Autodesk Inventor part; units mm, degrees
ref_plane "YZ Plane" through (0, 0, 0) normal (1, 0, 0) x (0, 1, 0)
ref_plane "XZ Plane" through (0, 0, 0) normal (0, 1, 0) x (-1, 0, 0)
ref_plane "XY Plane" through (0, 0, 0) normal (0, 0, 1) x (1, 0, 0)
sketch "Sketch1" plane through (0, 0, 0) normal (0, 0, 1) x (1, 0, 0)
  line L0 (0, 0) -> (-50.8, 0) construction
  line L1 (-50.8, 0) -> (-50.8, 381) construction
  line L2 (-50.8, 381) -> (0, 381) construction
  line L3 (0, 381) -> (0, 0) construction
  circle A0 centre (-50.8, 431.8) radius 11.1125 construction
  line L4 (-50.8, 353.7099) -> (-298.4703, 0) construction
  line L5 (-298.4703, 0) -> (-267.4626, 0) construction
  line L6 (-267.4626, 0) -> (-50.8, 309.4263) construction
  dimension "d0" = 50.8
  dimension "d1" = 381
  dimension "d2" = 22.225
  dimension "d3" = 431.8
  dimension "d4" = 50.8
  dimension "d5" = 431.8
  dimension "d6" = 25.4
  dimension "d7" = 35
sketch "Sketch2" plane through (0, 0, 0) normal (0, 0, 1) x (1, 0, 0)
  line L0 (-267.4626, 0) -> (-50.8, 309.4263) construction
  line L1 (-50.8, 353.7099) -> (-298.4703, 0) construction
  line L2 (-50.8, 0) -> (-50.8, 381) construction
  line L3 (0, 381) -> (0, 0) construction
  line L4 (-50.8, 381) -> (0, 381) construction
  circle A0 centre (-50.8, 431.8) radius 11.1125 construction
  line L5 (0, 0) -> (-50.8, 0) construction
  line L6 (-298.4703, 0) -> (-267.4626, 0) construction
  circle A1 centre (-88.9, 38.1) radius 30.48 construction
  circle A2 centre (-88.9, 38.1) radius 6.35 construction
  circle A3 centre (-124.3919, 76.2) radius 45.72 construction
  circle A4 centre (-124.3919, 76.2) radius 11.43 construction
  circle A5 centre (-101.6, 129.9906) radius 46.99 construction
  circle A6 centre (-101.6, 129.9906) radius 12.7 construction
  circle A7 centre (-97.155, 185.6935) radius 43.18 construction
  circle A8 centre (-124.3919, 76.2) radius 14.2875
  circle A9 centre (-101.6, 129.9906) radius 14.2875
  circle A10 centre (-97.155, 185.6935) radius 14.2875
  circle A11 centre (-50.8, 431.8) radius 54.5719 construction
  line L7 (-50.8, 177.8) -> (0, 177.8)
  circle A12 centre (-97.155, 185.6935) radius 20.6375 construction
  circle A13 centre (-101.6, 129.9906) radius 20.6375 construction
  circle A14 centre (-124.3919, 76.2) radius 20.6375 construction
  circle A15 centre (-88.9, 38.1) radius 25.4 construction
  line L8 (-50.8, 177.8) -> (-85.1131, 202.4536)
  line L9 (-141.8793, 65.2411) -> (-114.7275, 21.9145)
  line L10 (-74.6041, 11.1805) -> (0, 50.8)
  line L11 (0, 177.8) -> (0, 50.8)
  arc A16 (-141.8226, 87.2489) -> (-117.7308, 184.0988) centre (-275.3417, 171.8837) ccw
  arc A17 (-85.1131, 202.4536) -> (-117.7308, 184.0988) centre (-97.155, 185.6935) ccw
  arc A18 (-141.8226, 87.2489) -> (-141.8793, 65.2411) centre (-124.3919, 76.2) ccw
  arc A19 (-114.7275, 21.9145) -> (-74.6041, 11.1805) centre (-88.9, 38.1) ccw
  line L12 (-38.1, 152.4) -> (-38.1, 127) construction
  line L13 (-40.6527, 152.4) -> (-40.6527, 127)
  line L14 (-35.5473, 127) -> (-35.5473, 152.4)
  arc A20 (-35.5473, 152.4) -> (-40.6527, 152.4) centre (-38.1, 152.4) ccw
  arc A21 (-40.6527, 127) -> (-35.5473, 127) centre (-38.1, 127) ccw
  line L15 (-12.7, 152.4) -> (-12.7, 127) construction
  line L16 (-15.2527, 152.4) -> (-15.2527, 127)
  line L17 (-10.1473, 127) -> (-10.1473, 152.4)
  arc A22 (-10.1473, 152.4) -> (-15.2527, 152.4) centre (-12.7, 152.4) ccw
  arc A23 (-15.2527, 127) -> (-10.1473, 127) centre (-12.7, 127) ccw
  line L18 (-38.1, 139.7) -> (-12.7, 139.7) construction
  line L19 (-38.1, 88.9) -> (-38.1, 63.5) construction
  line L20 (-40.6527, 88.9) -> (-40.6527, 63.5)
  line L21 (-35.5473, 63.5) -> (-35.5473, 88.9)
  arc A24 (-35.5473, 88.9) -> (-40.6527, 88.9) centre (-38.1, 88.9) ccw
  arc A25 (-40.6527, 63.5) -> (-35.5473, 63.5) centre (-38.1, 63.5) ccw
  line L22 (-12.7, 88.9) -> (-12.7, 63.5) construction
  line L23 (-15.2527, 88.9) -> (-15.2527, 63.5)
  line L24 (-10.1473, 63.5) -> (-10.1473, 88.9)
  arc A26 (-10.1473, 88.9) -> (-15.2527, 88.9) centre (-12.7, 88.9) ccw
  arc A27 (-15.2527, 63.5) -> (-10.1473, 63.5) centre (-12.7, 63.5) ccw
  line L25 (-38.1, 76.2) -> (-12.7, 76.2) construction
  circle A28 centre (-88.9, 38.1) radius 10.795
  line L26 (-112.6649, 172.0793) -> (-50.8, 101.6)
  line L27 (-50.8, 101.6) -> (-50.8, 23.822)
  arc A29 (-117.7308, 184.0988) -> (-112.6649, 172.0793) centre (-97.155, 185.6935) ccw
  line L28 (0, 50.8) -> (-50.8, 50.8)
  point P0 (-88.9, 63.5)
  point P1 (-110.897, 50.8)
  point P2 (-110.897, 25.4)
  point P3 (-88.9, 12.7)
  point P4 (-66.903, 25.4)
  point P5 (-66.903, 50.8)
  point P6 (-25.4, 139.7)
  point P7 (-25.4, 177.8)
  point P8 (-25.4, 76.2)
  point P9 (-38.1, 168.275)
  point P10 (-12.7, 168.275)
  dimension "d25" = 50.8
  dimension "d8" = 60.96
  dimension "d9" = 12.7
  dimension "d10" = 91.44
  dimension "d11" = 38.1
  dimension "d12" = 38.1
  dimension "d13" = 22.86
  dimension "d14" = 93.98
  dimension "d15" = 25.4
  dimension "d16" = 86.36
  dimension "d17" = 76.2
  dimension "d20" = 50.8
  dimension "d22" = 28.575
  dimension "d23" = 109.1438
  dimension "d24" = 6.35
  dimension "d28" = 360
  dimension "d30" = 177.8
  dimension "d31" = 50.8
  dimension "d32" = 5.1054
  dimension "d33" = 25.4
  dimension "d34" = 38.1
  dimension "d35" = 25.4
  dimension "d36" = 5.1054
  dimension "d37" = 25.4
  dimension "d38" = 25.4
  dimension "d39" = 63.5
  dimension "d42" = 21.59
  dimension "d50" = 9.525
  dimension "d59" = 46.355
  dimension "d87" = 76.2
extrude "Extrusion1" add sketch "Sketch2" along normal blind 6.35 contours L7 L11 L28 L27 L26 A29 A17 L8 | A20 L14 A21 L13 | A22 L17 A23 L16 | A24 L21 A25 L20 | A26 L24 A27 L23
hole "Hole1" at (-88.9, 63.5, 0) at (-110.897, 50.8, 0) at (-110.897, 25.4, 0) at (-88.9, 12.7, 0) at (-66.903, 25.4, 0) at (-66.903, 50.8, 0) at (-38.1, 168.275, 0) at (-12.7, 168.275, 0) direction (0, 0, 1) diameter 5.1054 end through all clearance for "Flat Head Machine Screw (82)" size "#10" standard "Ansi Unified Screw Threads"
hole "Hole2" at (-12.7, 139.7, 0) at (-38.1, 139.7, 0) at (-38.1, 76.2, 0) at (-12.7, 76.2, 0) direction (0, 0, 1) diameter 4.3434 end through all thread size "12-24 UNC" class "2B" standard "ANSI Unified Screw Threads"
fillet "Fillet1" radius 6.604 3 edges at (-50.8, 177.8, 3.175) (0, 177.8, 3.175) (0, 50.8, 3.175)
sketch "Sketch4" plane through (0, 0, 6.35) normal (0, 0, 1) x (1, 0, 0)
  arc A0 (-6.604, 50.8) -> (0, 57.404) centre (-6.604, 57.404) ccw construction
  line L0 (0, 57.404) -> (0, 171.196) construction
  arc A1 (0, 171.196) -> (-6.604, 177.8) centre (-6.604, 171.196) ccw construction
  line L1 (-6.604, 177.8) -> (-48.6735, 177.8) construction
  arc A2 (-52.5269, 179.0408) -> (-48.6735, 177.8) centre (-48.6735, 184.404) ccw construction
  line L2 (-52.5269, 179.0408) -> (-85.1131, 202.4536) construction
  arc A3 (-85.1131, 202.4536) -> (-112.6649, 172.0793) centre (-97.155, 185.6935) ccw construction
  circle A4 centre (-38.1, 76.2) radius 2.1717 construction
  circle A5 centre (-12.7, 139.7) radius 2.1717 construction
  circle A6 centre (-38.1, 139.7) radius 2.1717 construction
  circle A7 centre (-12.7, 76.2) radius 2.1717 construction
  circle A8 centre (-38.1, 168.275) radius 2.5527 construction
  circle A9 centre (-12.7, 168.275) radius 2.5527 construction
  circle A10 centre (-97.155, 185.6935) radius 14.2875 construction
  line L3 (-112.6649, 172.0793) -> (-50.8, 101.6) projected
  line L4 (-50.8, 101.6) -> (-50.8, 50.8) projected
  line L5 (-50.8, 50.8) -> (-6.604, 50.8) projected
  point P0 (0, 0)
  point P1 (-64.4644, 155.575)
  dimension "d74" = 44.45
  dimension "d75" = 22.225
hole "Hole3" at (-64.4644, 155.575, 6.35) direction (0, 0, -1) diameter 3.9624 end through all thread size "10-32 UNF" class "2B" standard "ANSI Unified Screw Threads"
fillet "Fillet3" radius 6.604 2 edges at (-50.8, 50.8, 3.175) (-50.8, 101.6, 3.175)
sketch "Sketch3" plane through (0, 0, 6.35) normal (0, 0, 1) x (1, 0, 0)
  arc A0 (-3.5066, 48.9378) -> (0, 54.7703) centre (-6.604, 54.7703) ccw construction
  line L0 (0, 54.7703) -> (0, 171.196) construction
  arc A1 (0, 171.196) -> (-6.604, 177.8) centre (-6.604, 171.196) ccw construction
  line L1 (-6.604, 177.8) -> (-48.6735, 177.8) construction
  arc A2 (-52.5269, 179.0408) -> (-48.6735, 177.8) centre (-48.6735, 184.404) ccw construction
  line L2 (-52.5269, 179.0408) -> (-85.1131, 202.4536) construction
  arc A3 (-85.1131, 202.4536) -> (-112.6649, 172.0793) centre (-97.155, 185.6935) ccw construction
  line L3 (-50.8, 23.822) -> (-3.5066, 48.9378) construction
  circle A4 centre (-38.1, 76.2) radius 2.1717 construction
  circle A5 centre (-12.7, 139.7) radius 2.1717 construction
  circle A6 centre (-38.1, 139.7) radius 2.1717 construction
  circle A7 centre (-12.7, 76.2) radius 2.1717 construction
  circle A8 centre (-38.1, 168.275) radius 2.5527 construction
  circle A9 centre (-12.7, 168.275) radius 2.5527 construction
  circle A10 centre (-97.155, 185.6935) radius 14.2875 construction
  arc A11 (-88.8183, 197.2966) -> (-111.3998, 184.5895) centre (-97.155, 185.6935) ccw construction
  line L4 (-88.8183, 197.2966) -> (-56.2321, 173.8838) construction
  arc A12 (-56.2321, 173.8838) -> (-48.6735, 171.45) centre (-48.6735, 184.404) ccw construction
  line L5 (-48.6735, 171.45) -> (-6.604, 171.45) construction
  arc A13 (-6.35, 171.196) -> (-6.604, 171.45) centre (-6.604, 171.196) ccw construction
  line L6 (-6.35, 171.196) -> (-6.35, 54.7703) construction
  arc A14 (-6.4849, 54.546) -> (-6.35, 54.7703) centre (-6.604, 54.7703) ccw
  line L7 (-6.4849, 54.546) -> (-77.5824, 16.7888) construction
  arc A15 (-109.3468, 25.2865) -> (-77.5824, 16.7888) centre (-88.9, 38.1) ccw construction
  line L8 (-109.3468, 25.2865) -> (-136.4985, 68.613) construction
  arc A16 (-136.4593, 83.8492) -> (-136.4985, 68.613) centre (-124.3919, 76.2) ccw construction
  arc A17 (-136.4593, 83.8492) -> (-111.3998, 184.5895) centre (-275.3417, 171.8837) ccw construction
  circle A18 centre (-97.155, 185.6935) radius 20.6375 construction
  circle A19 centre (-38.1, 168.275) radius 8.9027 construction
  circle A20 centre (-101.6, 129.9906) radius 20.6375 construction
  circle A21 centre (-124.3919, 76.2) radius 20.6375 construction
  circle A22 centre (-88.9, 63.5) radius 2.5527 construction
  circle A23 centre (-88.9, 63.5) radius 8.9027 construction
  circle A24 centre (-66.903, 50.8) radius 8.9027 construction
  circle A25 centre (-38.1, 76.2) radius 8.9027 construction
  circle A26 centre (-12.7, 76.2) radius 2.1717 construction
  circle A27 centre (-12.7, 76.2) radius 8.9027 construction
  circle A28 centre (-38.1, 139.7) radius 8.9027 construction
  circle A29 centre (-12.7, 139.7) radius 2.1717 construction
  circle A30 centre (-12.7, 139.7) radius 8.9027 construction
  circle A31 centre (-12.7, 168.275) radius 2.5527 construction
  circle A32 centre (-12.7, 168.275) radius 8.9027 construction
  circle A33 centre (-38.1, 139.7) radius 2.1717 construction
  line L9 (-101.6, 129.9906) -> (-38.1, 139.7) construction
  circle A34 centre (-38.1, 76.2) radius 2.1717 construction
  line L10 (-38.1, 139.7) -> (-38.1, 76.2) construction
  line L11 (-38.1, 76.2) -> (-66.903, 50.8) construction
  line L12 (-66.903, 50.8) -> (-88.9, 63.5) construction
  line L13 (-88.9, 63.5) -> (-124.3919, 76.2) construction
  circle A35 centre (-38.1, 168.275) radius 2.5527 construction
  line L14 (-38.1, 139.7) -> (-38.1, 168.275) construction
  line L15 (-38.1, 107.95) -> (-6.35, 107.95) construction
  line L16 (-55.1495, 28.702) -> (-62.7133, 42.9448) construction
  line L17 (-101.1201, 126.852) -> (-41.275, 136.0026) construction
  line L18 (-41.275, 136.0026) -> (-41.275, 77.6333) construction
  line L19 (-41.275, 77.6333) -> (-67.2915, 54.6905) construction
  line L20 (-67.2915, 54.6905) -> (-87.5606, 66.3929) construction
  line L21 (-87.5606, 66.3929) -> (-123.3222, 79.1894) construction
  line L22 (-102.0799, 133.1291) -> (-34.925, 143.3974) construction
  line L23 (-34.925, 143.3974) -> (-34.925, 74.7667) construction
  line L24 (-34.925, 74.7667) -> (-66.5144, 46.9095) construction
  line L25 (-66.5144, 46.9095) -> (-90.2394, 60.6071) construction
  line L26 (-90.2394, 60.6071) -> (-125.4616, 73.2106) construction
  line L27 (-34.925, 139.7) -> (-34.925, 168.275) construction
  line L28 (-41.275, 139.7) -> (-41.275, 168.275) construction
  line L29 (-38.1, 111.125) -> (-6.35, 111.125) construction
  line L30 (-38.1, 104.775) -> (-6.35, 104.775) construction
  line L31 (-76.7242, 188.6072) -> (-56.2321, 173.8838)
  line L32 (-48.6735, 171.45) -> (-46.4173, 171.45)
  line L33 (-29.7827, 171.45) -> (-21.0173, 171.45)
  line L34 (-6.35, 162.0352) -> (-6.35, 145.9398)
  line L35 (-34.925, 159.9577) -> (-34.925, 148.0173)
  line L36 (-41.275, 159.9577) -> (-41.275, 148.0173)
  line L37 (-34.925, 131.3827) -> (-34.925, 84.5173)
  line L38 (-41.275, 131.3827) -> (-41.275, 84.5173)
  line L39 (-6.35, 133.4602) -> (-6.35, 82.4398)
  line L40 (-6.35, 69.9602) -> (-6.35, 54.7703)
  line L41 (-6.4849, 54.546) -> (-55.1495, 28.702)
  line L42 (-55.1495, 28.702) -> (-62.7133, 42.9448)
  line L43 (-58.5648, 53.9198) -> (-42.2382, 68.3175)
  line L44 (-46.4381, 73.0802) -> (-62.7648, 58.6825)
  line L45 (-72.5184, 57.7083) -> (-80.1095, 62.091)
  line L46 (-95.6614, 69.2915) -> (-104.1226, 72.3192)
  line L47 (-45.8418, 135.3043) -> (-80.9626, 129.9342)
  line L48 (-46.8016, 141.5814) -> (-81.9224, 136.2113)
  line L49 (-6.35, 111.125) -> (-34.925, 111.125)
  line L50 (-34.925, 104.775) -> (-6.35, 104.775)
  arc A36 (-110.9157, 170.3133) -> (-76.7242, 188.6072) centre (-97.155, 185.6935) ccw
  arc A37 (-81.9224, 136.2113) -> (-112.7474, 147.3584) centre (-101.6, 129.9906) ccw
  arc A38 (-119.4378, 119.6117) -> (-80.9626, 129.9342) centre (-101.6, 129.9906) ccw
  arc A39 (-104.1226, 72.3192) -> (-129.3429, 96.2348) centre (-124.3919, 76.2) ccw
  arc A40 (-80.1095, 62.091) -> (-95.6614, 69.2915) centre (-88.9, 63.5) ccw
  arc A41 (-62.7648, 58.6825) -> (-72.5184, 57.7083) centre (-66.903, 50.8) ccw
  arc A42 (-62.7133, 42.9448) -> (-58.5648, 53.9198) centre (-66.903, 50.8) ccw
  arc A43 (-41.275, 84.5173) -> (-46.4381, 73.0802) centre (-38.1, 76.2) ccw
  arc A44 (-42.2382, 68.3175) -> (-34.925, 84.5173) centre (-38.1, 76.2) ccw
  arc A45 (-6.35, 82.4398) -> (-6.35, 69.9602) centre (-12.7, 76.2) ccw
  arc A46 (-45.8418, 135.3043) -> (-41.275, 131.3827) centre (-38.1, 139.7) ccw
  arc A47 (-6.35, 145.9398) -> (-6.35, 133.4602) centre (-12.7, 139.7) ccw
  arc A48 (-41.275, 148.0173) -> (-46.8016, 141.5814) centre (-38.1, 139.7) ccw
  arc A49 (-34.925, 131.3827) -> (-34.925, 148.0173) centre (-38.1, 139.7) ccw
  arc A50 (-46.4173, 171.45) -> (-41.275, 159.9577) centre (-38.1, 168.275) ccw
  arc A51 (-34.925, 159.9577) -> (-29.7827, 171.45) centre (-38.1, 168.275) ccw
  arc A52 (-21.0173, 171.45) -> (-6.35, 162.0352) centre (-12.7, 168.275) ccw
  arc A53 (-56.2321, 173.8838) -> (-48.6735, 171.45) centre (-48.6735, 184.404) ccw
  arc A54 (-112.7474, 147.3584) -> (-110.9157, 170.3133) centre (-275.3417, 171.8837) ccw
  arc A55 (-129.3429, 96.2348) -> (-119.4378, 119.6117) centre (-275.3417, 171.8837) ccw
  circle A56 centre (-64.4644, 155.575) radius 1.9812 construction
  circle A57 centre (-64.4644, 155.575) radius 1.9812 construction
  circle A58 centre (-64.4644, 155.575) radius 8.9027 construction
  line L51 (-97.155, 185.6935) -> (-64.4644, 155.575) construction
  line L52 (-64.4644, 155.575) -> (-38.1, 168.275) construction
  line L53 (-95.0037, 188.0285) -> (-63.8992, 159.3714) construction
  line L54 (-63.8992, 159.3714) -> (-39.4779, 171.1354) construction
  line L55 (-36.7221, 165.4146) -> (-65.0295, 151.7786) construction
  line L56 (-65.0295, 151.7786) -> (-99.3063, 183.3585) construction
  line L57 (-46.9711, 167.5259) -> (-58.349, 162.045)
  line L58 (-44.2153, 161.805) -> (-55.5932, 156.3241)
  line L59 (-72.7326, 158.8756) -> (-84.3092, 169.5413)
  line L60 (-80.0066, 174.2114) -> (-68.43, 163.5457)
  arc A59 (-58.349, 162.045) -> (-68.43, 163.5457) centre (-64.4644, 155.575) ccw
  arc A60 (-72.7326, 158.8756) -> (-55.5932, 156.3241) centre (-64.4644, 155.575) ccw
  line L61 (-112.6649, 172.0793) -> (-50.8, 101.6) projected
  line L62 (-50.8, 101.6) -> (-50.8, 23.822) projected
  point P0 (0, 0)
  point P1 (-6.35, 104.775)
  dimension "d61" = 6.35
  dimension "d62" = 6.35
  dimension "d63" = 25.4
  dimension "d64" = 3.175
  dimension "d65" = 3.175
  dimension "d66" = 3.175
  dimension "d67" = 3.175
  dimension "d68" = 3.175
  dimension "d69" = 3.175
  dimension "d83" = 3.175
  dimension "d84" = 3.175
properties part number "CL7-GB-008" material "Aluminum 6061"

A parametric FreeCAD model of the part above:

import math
import FreeCAD as App
import Part
import Sketcher
from FreeCAD import Vector
Q = App.Units.Quantity


def edges_at(feature, points):
    """Names of the edges that pass closest to the given points."""
    edges = feature.Shape.Edges
    near = lambda p: min(range(len(edges)), key=lambda i: edges[i].distToShape(Part.Vertex(*p))[0])
    return sorted({f"Edge{near(p) + 1}" for p in points})

doc = App.newDocument("Part")
body = doc.addObject("PartDesign::Body", "Body")

sketch1 = doc.addObject("Sketcher::SketchObject", "Sketch")
body.addObject(sketch1)
sketch1.AttachmentSupport = (doc.XY_Plane, [""])
sketch1.MapMode = "FlatFace"
sketch1.addGeometry([
    Part.LineSegment(Vector(0, 177.8, 0), Vector(-50.8, 177.8, 0)),
    Part.LineSegment(Vector(-50.8, 177.8, 0), Vector(-85.1131, 202.4536, 0)),
    Part.ArcOfCircle(Part.Circle(Vector(-97.155, 185.6935, 0), Vector(0, 0, 1), 20.637505), math.radians(54.303277), math.radians(184.431774)),
    Part.ArcOfCircle(Part.Circle(Vector(-97.155, 185.6935, 0), Vector(0, 0, 1), 20.6375), math.radians(-175.568226), math.radians(-138.724153)),
    Part.LineSegment(Vector(-112.6649, 172.0793, 0), Vector(-50.8, 101.6, 0)),
    Part.LineSegment(Vector(-50.8, 101.6, 0), Vector(-50.8, 50.8, 0)),
    Part.LineSegment(Vector(-50.8, 50.8, 0), Vector(0, 50.8, 0)),
    Part.LineSegment(Vector(0, 50.8, 0), Vector(0, 177.8, 0)),
    Part.Circle(Vector(-97.155, 185.6935, 0), Vector(0, 0, 1), 14.2875),
], False)
sketch1.addConstraint([
    Sketcher.Constraint("Coincident", 0, 2, 1, 1),
    Sketcher.Constraint("Tangent", 1, 2, 2, 1),
    Sketcher.Constraint("Tangent", 2, 2, 3, 1),
    Sketcher.Constraint("Tangent", 3, 2, 4, 1),
    Sketcher.Constraint("Coincident", 4, 2, 5, 1),
    Sketcher.Constraint("Coincident", 5, 2, 6, 1),
    Sketcher.Constraint("Coincident", 6, 2, 7, 1),
    Sketcher.Constraint("Coincident", 7, 2, 0, 1),
    Sketcher.Constraint("Horizontal", 0),
    Sketcher.Constraint("Vertical", 5),
    Sketcher.Constraint("Horizontal", 6),
    Sketcher.Constraint("Vertical", 7),
    Sketcher.Constraint("Coincident", 8, 3, 2, 3),
    Sketcher.Constraint("Equal", 2, 3),
    Sketcher.Constraint("PointOnObject", 6, 2, -2),
    Sketcher.Constraint("Vertical", 0, 2, 4, 2),
    Sketcher.Constraint("Equal", 6, 5),
    Sketcher.Constraint("DistanceX", 0, 2, 0, 1, Q("2 in")),
    Sketcher.Constraint("Diameter", 8, Q("1.125 in")),
    Sketcher.Constraint("DistanceY", -1, 1, 0, 2, Q("7 in")),
    Sketcher.Constraint("DistanceY", -1, 1, 5, 2, Q("2 in")),
    Sketcher.Constraint("Radius", 2, Q("0.8125 in")),
    Sketcher.Constraint("DistanceX", 2, 3, 0, 2, Q("1.825 in")),
    Sketcher.Constraint("DistanceY", 3, 2, 2, 3, Q("0.536 in")),
    Sketcher.Constraint("DistanceY", 3, 2, 2, 2, Q("0.4732 in")),
])
pad1 = doc.addObject("PartDesign::Pad", "Pad")
body.addObject(pad1)
pad1.Profile = sketch1
pad1.Length = Q("0.25 in")

sketch2 = doc.addObject("Sketcher::SketchObject", "Sketch001")
body.addObject(sketch2)
sketch2.AttachmentSupport = (doc.XY_Plane, [""])
sketch2.MapMode = "FlatFace"
sketch2.addGeometry([
    Part.Circle(Vector(-88.9, 63.5, 0), Vector(0, 0, 1), 2.5527),
    Part.Circle(Vector(-110.897, 50.8, 0), Vector(0, 0, 1), 2.5527),
    Part.Circle(Vector(-110.897, 25.4, 0), Vector(0, 0, 1), 2.5527),
    Part.Circle(Vector(-88.9, 12.7, 0), Vector(0, 0, 1), 2.5527),
    Part.Circle(Vector(-66.903, 25.4, 0), Vector(0, 0, 1), 2.5527),
    Part.Circle(Vector(-66.903, 50.8, 0), Vector(0, 0, 1), 2.5527),
    Part.Circle(Vector(-38.1, 168.275, 0), Vector(0, 0, 1), 2.5527),
    Part.Circle(Vector(-12.7, 168.275, 0), Vector(0, 0, 1), 2.5527),
], False)
sketch2.addConstraint([
    Sketcher.Constraint("Equal", 0, 1),
    Sketcher.Constraint("Equal", 1, 2),
    Sketcher.Constraint("Equal", 2, 3),
    Sketcher.Constraint("Equal", 3, 4),
    Sketcher.Constraint("Equal", 4, 5),
    Sketcher.Constraint("Equal", 5, 6),
    Sketcher.Constraint("Equal", 6, 7),
    Sketcher.Constraint("Horizontal", 2, 3, 4, 3),
    Sketcher.Constraint("Horizontal", 1, 3, 5, 3),
    Sketcher.Constraint("Horizontal", 6, 3, 7, 3),
    Sketcher.Constraint("Vertical", 1, 3, 2, 3),
    Sketcher.Constraint("Vertical", 0, 3, 3, 3),
    Sketcher.Constraint("Vertical", 4, 3, 5, 3),
    Sketcher.Constraint("Diameter", 0, Q("0.201 in")),
    Sketcher.Constraint("DistanceY", -1, 1, 1, 3, Q("2 in")),
    Sketcher.Constraint("DistanceY", -1, 1, 2, 3, Q("1 in")),
    Sketcher.Constraint("DistanceY", 3, 3, 0, 3, Q("2 in")),
    Sketcher.Constraint("DistanceX", 0, 3, 6, 3, Q("2 in")),
    Sketcher.Constraint("DistanceX", 6, 3, 7, 3, Q("1 in")),
    Sketcher.Constraint("DistanceX", 0, 3, -1, 1, Q("3.5 in")),
    Sketcher.Constraint("DistanceY", -1, 1, 0, 3, Q("2.5 in")),
    Sketcher.Constraint("DistanceY", -1, 1, 6, 3, Q("6.625 in")),
    Sketcher.Constraint("DistanceX", 1, 3, -1, 1, 110.897),
    Sketcher.Constraint("DistanceX", 4, 3, -1, 1, 66.903),
])
doc.recompute()
hole = doc.addObject("PartDesign::Hole", "Hole")
body.addObject(hole)
hole.Profile = sketch2
hole.ThreadType = "None"
hole.Diameter = Q("0.201 in")
hole.DepthType = "ThroughAll"
hole.Reversed = True

sketch3 = doc.addObject("Sketcher::SketchObject", "Sketch002")
body.addObject(sketch3)
sketch3.AttachmentSupport = (doc.XY_Plane, [""])
sketch3.MapMode = "FlatFace"
sketch3.addGeometry([
    Part.Circle(Vector(-12.7, 139.7, 0), Vector(0, 0, 1), 2.1717),
    Part.Circle(Vector(-38.1, 139.7, 0), Vector(0, 0, 1), 2.1717),
    Part.Circle(Vector(-38.1, 76.2, 0), Vector(0, 0, 1), 2.1717),
    Part.Circle(Vector(-12.7, 76.2, 0), Vector(0, 0, 1), 2.1717),
], False)
sketch3.addConstraint([
    Sketcher.Constraint("Equal", 0, 1),
    Sketcher.Constraint("Equal", 1, 2),
    Sketcher.Constraint("Equal", 2, 3),
    Sketcher.Constraint("Horizontal", 0, 3, 1, 3),
    Sketcher.Constraint("Horizontal", 2, 3, 3, 3),
    Sketcher.Constraint("Vertical", 1, 3, 2, 3),
    Sketcher.Constraint("Vertical", 0, 3, 3, 3),
    Sketcher.Constraint("Diameter", 0, Q("0.171 in")),
    Sketcher.Constraint("DistanceY", -1, 1, 2, 3, Q("3 in")),
    Sketcher.Constraint("DistanceX", 1, 3, 0, 3, Q("1 in")),
    Sketcher.Constraint("DistanceX", 0, 3, -1, 1, Q("0.5 in")),
    Sketcher.Constraint("DistanceY", -1, 1, 0, 3, Q("5.5 in")),
])
doc.recompute()
hole2 = doc.addObject("PartDesign::Hole", "Hole001")
body.addObject(hole2)
hole2.Profile = sketch3
hole2.ThreadType = "None"
hole2.Diameter = Q("0.171 in")
hole2.DepthType = "ThroughAll"
hole2.Reversed = True
doc.recompute()

fillet = doc.addObject("PartDesign::Fillet", "Fillet")
body.addObject(fillet)
fillet.Base = (hole2, edges_at(hole2, [(-50.8, 177.8, 3.175), (0, 177.8, 3.175), (0, 50.8, 3.175)]))
fillet.Radius = Q("0.26 in")

sketch4 = doc.addObject("Sketcher::SketchObject", "Sketch003")
body.addObject(sketch4)
sketch4.AttachmentSupport = (doc.XY_Plane, [""])
sketch4.MapMode = "FlatFace"
sketch4.AttachmentOffset = App.Placement(Vector(0, 0, 0.25 * 25.4), App.Rotation())
sketch4.addGeometry(Part.Circle(Vector(-64.4644, 155.575, 0), Vector(0, 0, 1), 1.9812), False)
sketch4.addConstraint([
    Sketcher.Constraint("Diameter", 0, Q("0.156 in")),
    Sketcher.Constraint("DistanceY", -1, 1, 0, 3, Q("6.125 in")),
    Sketcher.Constraint("DistanceX", 0, 3, -1, 1, 64.4644),
])
doc.recompute()
hole3 = doc.addObject("PartDesign::Hole", "Hole002")
body.addObject(hole3)
hole3.Profile = sketch4
hole3.ThreadType = "None"
hole3.Diameter = Q("0.156 in")
hole3.DepthType = "ThroughAll"
doc.recompute()

fillet2 = doc.addObject("PartDesign::Fillet", "Fillet001")
body.addObject(fillet2)
fillet2.Base = (hole3, edges_at(hole3, [(-50.8, 50.8, 3.175), (-50.8, 101.6, 3.175)]))
fillet2.Radius = Q("0.26 in")

doc.recompute()
